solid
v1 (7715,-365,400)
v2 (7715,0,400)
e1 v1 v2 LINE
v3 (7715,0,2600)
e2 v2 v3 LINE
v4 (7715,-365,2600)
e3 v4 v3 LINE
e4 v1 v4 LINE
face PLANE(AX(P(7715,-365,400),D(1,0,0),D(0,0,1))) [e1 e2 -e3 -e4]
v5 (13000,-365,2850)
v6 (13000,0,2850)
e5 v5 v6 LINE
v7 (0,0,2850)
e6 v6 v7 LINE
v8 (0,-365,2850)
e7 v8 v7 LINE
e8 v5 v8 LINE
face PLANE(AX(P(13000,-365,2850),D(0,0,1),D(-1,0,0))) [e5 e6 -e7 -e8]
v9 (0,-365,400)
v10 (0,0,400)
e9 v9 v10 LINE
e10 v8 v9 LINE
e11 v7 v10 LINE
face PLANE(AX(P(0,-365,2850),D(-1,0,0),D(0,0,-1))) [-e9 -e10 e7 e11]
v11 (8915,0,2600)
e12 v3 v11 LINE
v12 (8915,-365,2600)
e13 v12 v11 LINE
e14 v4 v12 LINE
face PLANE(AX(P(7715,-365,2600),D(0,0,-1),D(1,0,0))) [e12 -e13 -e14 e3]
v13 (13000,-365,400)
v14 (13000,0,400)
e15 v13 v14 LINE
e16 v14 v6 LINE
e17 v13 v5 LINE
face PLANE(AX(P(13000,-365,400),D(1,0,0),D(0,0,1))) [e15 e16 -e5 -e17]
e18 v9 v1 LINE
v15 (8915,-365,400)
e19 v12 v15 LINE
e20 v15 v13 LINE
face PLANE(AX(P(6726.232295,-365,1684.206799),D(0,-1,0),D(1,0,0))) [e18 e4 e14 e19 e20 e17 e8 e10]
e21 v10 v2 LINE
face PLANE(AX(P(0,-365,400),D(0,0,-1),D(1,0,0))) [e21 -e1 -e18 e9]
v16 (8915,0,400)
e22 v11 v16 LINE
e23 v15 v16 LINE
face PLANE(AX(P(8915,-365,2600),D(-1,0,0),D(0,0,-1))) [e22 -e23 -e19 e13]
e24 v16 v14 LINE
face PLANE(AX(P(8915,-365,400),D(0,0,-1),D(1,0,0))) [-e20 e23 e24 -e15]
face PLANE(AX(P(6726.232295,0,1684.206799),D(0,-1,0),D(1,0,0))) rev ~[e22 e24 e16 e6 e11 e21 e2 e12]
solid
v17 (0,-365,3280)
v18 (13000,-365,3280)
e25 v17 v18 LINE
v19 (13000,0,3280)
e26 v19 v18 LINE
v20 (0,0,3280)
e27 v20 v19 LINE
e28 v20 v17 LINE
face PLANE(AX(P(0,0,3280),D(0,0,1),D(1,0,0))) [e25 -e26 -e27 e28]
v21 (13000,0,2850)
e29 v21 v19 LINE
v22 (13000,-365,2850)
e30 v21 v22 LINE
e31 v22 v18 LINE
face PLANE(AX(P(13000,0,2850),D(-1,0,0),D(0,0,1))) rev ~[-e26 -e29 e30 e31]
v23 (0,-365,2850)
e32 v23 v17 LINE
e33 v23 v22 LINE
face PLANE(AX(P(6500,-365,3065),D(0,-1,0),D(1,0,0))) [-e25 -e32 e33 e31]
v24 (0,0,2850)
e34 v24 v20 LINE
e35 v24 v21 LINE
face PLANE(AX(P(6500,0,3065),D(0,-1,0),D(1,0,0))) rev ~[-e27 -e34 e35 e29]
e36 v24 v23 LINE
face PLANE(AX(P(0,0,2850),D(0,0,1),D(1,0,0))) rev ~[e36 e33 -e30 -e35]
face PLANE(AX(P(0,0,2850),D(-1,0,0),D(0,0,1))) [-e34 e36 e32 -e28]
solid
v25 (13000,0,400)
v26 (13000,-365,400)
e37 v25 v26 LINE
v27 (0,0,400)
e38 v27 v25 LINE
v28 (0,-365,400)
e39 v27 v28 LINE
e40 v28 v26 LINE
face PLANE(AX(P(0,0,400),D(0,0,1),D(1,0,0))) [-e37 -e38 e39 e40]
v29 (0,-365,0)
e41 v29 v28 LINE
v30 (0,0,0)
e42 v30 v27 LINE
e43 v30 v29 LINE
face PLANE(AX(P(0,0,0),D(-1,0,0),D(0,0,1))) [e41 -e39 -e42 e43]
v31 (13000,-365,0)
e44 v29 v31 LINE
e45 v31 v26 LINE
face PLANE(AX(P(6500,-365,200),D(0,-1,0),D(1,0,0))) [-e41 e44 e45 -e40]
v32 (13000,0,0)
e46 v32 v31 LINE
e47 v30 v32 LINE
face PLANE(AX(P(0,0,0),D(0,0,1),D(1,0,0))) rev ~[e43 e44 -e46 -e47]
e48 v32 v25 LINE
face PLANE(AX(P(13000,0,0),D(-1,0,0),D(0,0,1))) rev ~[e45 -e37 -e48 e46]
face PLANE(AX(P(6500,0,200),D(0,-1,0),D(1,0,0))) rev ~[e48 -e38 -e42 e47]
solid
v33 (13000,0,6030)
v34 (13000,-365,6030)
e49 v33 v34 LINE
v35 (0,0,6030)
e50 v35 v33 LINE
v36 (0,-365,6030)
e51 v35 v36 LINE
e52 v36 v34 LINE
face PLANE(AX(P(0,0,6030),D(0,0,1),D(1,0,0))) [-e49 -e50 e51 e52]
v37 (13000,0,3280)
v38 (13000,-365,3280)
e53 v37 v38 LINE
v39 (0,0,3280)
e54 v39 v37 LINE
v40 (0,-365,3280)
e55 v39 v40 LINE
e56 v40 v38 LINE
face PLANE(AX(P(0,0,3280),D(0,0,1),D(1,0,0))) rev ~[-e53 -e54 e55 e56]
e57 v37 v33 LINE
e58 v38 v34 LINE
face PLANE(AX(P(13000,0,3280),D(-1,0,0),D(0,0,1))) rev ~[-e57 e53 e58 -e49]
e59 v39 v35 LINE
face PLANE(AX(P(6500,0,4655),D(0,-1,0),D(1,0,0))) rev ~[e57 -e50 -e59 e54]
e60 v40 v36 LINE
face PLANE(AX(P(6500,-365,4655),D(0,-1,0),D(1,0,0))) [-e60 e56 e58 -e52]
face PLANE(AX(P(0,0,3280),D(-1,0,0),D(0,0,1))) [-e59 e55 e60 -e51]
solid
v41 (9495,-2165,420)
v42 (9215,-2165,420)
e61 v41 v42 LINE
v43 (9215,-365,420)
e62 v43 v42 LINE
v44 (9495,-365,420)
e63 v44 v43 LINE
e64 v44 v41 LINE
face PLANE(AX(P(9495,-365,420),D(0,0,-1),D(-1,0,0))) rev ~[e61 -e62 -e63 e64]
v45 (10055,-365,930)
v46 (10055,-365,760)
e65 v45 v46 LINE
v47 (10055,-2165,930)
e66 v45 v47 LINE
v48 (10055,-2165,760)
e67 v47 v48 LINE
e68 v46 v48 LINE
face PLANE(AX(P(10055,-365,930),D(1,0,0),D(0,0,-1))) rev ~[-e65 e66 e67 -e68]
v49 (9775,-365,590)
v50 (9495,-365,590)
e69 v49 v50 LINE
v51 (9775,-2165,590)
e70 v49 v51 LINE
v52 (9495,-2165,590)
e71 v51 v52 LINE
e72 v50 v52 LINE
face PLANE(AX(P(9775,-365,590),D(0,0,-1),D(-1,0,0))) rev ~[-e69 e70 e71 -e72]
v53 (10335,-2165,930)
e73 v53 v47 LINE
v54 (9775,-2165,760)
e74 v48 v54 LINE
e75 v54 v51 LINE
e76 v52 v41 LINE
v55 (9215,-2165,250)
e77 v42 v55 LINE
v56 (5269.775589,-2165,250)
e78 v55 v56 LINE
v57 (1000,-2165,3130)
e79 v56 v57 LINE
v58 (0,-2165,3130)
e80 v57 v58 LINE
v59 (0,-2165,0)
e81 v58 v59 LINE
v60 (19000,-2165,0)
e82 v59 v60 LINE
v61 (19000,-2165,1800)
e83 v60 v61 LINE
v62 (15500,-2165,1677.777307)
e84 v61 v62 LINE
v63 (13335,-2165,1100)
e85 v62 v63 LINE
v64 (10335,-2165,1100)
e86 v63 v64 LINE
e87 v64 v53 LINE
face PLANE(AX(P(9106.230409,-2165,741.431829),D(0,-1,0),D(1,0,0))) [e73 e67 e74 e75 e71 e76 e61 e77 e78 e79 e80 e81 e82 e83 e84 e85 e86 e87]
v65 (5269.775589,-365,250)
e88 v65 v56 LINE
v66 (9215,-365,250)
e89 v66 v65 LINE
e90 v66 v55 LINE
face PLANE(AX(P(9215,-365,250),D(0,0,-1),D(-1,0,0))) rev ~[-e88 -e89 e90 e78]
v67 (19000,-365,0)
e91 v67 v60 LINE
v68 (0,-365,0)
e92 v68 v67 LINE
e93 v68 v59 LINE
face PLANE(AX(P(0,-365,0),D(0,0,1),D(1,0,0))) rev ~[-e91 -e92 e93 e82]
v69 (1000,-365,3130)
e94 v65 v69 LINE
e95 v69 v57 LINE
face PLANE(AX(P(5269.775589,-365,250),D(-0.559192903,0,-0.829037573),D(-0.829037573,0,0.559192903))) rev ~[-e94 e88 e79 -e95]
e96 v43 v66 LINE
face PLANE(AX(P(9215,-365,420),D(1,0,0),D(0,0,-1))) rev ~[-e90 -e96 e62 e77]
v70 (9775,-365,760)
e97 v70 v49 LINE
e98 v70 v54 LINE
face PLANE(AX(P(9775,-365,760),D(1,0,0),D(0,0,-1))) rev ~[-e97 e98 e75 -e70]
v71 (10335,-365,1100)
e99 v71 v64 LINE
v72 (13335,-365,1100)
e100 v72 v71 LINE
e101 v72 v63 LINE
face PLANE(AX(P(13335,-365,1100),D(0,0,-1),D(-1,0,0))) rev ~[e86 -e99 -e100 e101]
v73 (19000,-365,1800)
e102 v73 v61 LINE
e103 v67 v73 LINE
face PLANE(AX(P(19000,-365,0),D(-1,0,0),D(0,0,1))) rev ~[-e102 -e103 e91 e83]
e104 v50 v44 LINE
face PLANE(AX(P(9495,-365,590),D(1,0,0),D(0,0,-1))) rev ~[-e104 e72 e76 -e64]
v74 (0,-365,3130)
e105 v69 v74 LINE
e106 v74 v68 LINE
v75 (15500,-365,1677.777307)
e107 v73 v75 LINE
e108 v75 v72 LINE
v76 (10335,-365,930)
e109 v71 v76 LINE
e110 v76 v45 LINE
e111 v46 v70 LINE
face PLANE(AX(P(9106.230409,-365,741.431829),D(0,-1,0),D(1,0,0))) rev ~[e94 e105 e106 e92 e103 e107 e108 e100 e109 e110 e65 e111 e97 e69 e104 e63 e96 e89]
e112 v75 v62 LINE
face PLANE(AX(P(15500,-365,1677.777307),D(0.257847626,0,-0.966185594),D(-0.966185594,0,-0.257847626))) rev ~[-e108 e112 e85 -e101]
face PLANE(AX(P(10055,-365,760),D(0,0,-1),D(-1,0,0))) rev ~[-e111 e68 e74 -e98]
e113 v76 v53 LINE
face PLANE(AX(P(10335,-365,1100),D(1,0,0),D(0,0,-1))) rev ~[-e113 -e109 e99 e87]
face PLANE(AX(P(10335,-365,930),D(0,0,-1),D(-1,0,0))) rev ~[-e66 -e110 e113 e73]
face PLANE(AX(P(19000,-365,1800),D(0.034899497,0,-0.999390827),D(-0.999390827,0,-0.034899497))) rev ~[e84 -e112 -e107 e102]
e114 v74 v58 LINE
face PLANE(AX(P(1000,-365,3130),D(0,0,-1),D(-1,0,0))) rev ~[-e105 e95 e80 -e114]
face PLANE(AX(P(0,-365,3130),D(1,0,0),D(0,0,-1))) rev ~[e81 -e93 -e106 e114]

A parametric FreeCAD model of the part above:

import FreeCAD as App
import Part
import Sketcher

V = App.Vector
Q = App.Units.Quantity

doc = App.newDocument("Part")
body = doc.addObject("PartDesign::Body", "Body")

sketch1 = doc.addObject("Sketcher::SketchObject", "Sketch")
body.addObject(sketch1)
sketch1.AttachmentSupport = (doc.XZ_Plane, [""])
sketch1.MapMode = "FlatFace"
sketch1.addGeometry([
    Part.LineSegment(V(0, 400, 0), V(0, 0, 0)),
    Part.LineSegment(V(0, 0, 0), V(13000, 0, 0)),
    Part.LineSegment(V(13000, 0, 0), V(13000, 400, 0)),
    Part.LineSegment(V(13000, 400, 0), V(0, 400, 0)),
], False)
sketch1.addConstraint([
    Sketcher.Constraint("Coincident", 0, 2, 1, 1),
    Sketcher.Constraint("Coincident", 1, 2, 2, 1),
    Sketcher.Constraint("Coincident", 2, 2, 3, 1),
    Sketcher.Constraint("Coincident", 3, 2, 0, 1),
    Sketcher.Constraint("Vertical", 0),
    Sketcher.Constraint("Horizontal", 1),
    Sketcher.Constraint("Vertical", 2),
    Sketcher.Constraint("Horizontal", 3),
    Sketcher.Constraint("Coincident", 0, 2, -1, 1),
    Sketcher.Constraint("DistanceX", 1, 1, 1, 2, 13000.0),
    Sketcher.Constraint("DistanceY", 0, 2, 0, 1, 400.0),
])
pad1 = doc.addObject("PartDesign::Pad", "Pad")
body.addObject(pad1)
pad1.Profile = sketch1
pad1.Length = 365
body2 = doc.addObject("PartDesign::Body", "Body001")

sketch2 = doc.addObject("Sketcher::SketchObject", "Sketch001")
body2.addObject(sketch2)
sketch2.AttachmentSupport = (doc.getObject("XZ_Plane001"), [""])
sketch2.MapMode = "FlatFace"
sketch2.AttachmentOffset = App.Placement(V(0, 0, 365), App.Rotation())
sketch2.addGeometry([
    Part.LineSegment(V(0, 2850, 0), V(0, 400, 0)),
    Part.LineSegment(V(0, 400, 0), V(7715, 400, 0)),
    Part.LineSegment(V(7715, 400, 0), V(7715, 2600, 0)),
    Part.LineSegment(V(7715, 2600, 0), V(8915, 2600, 0)),
    Part.LineSegment(V(8915, 2600, 0), V(8915, 400, 0)),
    Part.LineSegment(V(8915, 400, 0), V(13000, 400, 0)),
    Part.LineSegment(V(13000, 400, 0), V(13000, 2850, 0)),
    Part.LineSegment(V(13000, 2850, 0), V(0, 2850, 0)),
], False)
sketch2.addConstraint([
    Sketcher.Constraint("Coincident", 0, 2, 1, 1),
    Sketcher.Constraint("Coincident", 1, 2, 2, 1),
    Sketcher.Constraint("Coincident", 2, 2, 3, 1),
    Sketcher.Constraint("Coincident", 3, 2, 4, 1),
    Sketcher.Constraint("Coincident", 4, 2, 5, 1),
    Sketcher.Constraint("Coincident", 5, 2, 6, 1),
    Sketcher.Constraint("Coincident", 6, 2, 7, 1),
    Sketcher.Constraint("Coincident", 7, 2, 0, 1),
    Sketcher.Constraint("Vertical", 0),
    Sketcher.Constraint("Horizontal", 1),
    Sketcher.Constraint("Vertical", 2),
    Sketcher.Constraint("Horizontal", 3),
    Sketcher.Constraint("Vertical", 4),
    Sketcher.Constraint("Horizontal", 5),
    Sketcher.Constraint("Vertical", 6),
    Sketcher.Constraint("Horizontal", 7),
    Sketcher.Constraint("PointOnObject", 0, 2, -2),
    Sketcher.Constraint("Horizontal", 1, 2, 4, 2),
    Sketcher.Constraint("DistanceX", 1, 1, 1, 2, 7715.0),
    Sketcher.Constraint("DistanceX", 3, 1, 3, 2, 1200.0),
    Sketcher.Constraint("DistanceX", 5, 1, 5, 2, 4085.0),
    Sketcher.Constraint("DistanceY", 0, 2, 0, 1, 2450.0),
    Sketcher.Constraint("DistanceY", 2, 1, 2, 2, 2200.0),
    Sketcher.Constraint("DistanceY", -1, 1, 0, 2, 400.0),
])
pad2 = doc.addObject("PartDesign::Pad", "Pad001")
body2.addObject(pad2)
pad2.Profile = sketch2
pad2.Length = 365
pad2.Reversed = True
body3 = doc.addObject("PartDesign::Body", "Body002")

sketch3 = doc.addObject("Sketcher::SketchObject", "Sketch002")
body3.addObject(sketch3)
sketch3.AttachmentSupport = (doc.getObject("XZ_Plane002"), [""])
sketch3.MapMode = "FlatFace"
sketch3.addGeometry([
    Part.LineSegment(V(0, 3280, 0), V(0, 2850, 0)),
    Part.LineSegment(V(0, 2850, 0), V(13000, 2850, 0)),
    Part.LineSegment(V(13000, 2850, 0), V(13000, 3280, 0)),
    Part.LineSegment(V(13000, 3280, 0), V(0, 3280, 0)),
], False)
sketch3.addConstraint([
    Sketcher.Constraint("Coincident", 0, 2, 1, 1),
    Sketcher.Constraint("Coincident", 1, 2, 2, 1),
    Sketcher.Constraint("Coincident", 2, 2, 3, 1),
    Sketcher.Constraint("Coincident", 3, 2, 0, 1),
    Sketcher.Constraint("Vertical", 0),
    Sketcher.Constraint("Horizontal", 1),
    Sketcher.Constraint("Vertical", 2),
    Sketcher.Constraint("Horizontal", 3),
    Sketcher.Constraint("PointOnObject", 0, 2, -2),
    Sketcher.Constraint("DistanceX", 1, 1, 1, 2, 13000.0),
    Sketcher.Constraint("DistanceY", 0, 2, 0, 1, 430.0),
    Sketcher.Constraint("DistanceY", -1, 1, 0, 2, 2850.0),
])
pad3 = doc.addObject("PartDesign::Pad", "Pad002")
body3.addObject(pad3)
pad3.Profile = sketch3
pad3.Length = 365
body4 = doc.addObject("PartDesign::Body", "Body003")

sketch4 = doc.addObject("Sketcher::SketchObject", "Sketch003")
body4.addObject(sketch4)
sketch4.AttachmentSupport = (doc.getObject("XZ_Plane003"), [""])
sketch4.MapMode = "FlatFace"
sketch4.addGeometry([
    Part.LineSegment(V(0, 6030, 0), V(0, 3280, 0)),
    Part.LineSegment(V(0, 3280, 0), V(13000, 3280, 0)),
    Part.LineSegment(V(13000, 3280, 0), V(13000, 6030, 0)),
    Part.LineSegment(V(13000, 6030, 0), V(0, 6030, 0)),
], False)
sketch4.addConstraint([
    Sketcher.Constraint("Coincident", 0, 2, 1, 1),
    Sketcher.Constraint("Coincident", 1, 2, 2, 1),
    Sketcher.Constraint("Coincident", 2, 2, 3, 1),
    Sketcher.Constraint("Coincident", 3, 2, 0, 1),
    Sketcher.Constraint("Vertical", 0),
    Sketcher.Constraint("Horizontal", 1),
    Sketcher.Constraint("Vertical", 2),
    Sketcher.Constraint("Horizontal", 3),
    Sketcher.Constraint("PointOnObject", 0, 2, -2),
    Sketcher.Constraint("DistanceX", 1, 1, 1, 2, 13000.0),
    Sketcher.Constraint("DistanceY", 0, 2, 0, 1, 2750.0),
    Sketcher.Constraint("DistanceY", -1, 1, 0, 2, 3280.0),
])
pad4 = doc.addObject("PartDesign::Pad", "Pad003")
body4.addObject(pad4)
pad4.Profile = sketch4
pad4.Length = 365
body5 = doc.addObject("PartDesign::Body", "Body004")

sketch5 = doc.addObject("Sketcher::SketchObject", "Sketch004")
body5.addObject(sketch5)
sketch5.AttachmentSupport = (doc.getObject("XZ_Plane004"), [""])
sketch5.MapMode = "FlatFace"
sketch5.AttachmentOffset = App.Placement(V(0, 0, 365), App.Rotation())
sketch5.addGeometry([
    Part.LineSegment(V(1000, 3130, 0), V(0, 3130, 0)),
    Part.LineSegment(V(0, 3130, 0), V(0, 0, 0)),
    Part.LineSegment(V(0, 0, 0), V(19000, 0, 0)),
    Part.LineSegment(V(19000, 0, 0), V(19000, 1800, 0)),
    Part.LineSegment(V(19000, 1800, 0), V(15500, 1678, 0)),
    Part.LineSegment(V(15500, 1678, 0), V(13335, 1100, 0)),
    Part.LineSegment(V(13335, 1100, 0), V(10335, 1100, 0)),
    Part.LineSegment(V(10335, 1100, 0), V(10335, 930, 0)),
    Part.LineSegment(V(10335, 930, 0), V(10055, 930, 0)),
    Part.LineSegment(V(10055, 930, 0), V(10055, 760, 0)),
    Part.LineSegment(V(10055, 760, 0), V(9775, 760, 0)),
    Part.LineSegment(V(9775, 760, 0), V(9775, 590, 0)),
    Part.LineSegment(V(9775, 590, 0), V(9495, 590, 0)),
    Part.LineSegment(V(9495, 590, 0), V(9495, 420, 0)),
    Part.LineSegment(V(9495, 420, 0), V(9215, 420, 0)),
    Part.LineSegment(V(9215, 420, 0), V(9215, 250, 0)),
    Part.LineSegment(V(9215, 250, 0), V(5270, 250, 0)),
    Part.LineSegment(V(5270, 250, 0), V(1000, 3130, 0)),
], False)
sketch5.addConstraint([
    Sketcher.Constraint("Coincident", 0, 2, 1, 1),
    Sketcher.Constraint("Coincident", 1, 2, 2, 1),
    Sketcher.Constraint("Coincident", 2, 2, 3, 1),
    Sketcher.Constraint("Coincident", 3, 2, 4, 1),
    Sketcher.Constraint("Coincident", 4, 2, 5, 1),
    Sketcher.Constraint("Coincident", 5, 2, 6, 1),
    Sketcher.Constraint("Coincident", 6, 2, 7, 1),
    Sketcher.Constraint("Coincident", 7, 2, 8, 1),
    Sketcher.Constraint("Coincident", 8, 2, 9, 1),
    Sketcher.Constraint("Coincident", 9, 2, 10, 1),
    Sketcher.Constraint("Coincident", 10, 2, 11, 1),
    Sketcher.Constraint("Coincident", 11, 2, 12, 1),
    Sketcher.Constraint("Coincident", 12, 2, 13, 1),
    Sketcher.Constraint("Coincident", 13, 2, 14, 1),
    Sketcher.Constraint("Coincident", 14, 2, 15, 1),
    Sketcher.Constraint("Coincident", 15, 2, 16, 1),
    Sketcher.Constraint("Coincident", 16, 2, 17, 1),
    Sketcher.Constraint("Coincident", 17, 2, 0, 1),
    Sketcher.Constraint("Horizontal", 0),
    Sketcher.Constraint("Vertical", 1),
    Sketcher.Constraint("Horizontal", 2),
    Sketcher.Constraint("Vertical", 3),
    Sketcher.Constraint("Horizontal", 6),
    Sketcher.Constraint("Vertical", 7),
    Sketcher.Constraint("Horizontal", 8),
    Sketcher.Constraint("Vertical", 9),
    Sketcher.Constraint("Horizontal", 10),
    Sketcher.Constraint("Vertical", 11),
    Sketcher.Constraint("Horizontal", 12),
    Sketcher.Constraint("Vertical", 13),
    Sketcher.Constraint("Horizontal", 14),
    Sketcher.Constraint("Vertical", 15),
    Sketcher.Constraint("Horizontal", 16),
    Sketcher.Constraint("Coincident", 1, 2, -1, 1),
    Sketcher.Constraint("Equal", 8, 10),
    Sketcher.Constraint("Equal", 10, 12),
    Sketcher.Constraint("Equal", 12, 14),
    Sketcher.Constraint("Equal", 7, 9),
    Sketcher.Constraint("Equal", 9, 11),
    Sketcher.Constraint("Equal", 11, 13),
    Sketcher.Constraint("Equal", 13, 15),
    Sketcher.Constraint("DistanceX", 0, 2, 0, 1, 1000.0),
    Sketcher.Constraint("DistanceX", 2, 1, 2, 2, 19000.0),
    Sketcher.Constraint("DistanceX", 6, 2, 6, 1, 3000.0),
    Sketcher.Constraint("DistanceX", 8, 2, 8, 1, 280.0),
    Sketcher.Constraint("DistanceY", 1, 2, 1, 1, 3130.0),
    Sketcher.Constraint("DistanceY", 3, 1, 3, 2, 1800.0),
    Sketcher.Constraint("DistanceY", 7, 2, 7, 1, 170.0),
    Sketcher.Constraint("Angle", 4, Q("-178 deg")),
    Sketcher.Constraint("Angle", 17, Q("146 deg")),
    Sketcher.Constraint("DistanceX", -1, 1, 4, 2, 15500.0),
    Sketcher.Constraint("DistanceX", -1, 1, 5, 2, 13335.0),
    Sketcher.Constraint("DistanceY", -1, 1, 5, 2, 1100.0),
])
pad5 = doc.addObject("PartDesign::Pad", "Pad004")
body5.addObject(pad5)
pad5.Profile = sketch5
pad5.Length = 1800

doc.recompute()
